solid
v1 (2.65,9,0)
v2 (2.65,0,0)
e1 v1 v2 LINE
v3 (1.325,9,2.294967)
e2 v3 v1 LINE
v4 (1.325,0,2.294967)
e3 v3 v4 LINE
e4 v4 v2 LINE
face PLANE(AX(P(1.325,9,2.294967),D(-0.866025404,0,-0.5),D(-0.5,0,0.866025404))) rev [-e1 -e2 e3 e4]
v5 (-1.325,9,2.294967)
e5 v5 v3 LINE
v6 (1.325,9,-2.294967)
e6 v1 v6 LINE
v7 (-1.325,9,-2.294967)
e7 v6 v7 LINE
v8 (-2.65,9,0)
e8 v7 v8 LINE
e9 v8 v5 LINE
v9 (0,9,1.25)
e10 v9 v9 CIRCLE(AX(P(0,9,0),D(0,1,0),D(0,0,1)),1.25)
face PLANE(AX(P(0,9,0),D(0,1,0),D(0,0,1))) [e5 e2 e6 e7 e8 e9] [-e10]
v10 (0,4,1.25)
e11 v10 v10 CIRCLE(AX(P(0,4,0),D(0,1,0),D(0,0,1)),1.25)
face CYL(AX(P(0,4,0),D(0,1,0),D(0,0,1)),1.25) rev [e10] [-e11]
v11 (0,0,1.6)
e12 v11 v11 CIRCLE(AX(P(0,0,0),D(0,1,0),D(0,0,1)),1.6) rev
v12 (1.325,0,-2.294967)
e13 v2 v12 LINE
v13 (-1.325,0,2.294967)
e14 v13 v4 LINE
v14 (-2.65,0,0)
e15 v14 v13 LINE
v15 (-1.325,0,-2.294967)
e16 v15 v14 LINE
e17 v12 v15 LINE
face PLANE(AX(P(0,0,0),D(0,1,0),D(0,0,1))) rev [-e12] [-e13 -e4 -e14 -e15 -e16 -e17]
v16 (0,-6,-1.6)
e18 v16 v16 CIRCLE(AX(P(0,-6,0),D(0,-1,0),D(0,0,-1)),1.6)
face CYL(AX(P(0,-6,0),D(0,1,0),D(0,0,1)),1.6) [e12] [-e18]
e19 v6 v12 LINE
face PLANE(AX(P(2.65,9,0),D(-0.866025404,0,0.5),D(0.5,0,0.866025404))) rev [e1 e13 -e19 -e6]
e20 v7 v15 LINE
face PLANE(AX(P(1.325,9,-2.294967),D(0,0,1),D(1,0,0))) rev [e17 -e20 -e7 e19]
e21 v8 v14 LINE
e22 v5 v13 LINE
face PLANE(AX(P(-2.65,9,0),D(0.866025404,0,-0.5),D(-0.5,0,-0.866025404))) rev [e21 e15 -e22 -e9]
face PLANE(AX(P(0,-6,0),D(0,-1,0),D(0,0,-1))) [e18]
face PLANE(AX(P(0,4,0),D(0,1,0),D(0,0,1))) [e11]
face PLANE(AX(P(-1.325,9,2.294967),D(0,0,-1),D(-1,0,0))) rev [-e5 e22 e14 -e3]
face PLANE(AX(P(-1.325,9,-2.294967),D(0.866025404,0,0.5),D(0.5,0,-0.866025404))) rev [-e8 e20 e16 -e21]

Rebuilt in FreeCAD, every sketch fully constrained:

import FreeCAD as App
import Part
import Sketcher
from FreeCAD import Vector
Q = App.Units.Quantity

doc = App.newDocument("Part")
body = doc.addObject("PartDesign::Body", "Body")

# Sketch on XZ plane
sketch1 = body.newObject("Sketcher::SketchObject", "Sketch")
sketch1.AttachmentSupport = (doc.getObject("XZ_Plane"), [""])
sketch1.MapMode = "FlatFace"
sketch1.addGeometry([
    Part.LineSegment(Vector(1.3, 2.3, 0), Vector(2.6, 0, 0)),  # 0
    Part.LineSegment(Vector(2.6, 0, 0), Vector(1.3, -2.3, 0)),  # 1
    Part.LineSegment(Vector(1.3, -2.3, 0), Vector(-1.3, -2.3, 0)),  # 2
    Part.LineSegment(Vector(-1.3, -2.3, 0), Vector(-2.6, 0, 0)),  # 3
    Part.LineSegment(Vector(-2.6, 0, 0), Vector(-1.3, 2.3, 0)),  # 4
    Part.LineSegment(Vector(-1.3, 2.3, 0), Vector(1.3, 2.3, 0)),  # 5
], False)
sketch1.addConstraint([
    Sketcher.Constraint("Coincident", 0, 2, 1, 1),
    Sketcher.Constraint("Coincident", 1, 2, 2, 1),
    Sketcher.Constraint("Coincident", 2, 2, 3, 1),
    Sketcher.Constraint("Coincident", 3, 2, 4, 1),
    Sketcher.Constraint("Coincident", 4, 2, 5, 1),
    Sketcher.Constraint("Coincident", 5, 2, 0, 1),
    Sketcher.Constraint("Horizontal", 2),
    Sketcher.Constraint("Horizontal", 5),
    Sketcher.Constraint("Symmetric", 0, 2, 3, 2, -1, 1),
    Sketcher.Constraint("Symmetric", 1, 2, 4, 2, -1, 1),
    Sketcher.Constraint("PointOnObject", 0, 2, -1),
    Sketcher.Constraint("Parallel", 0, 3),
    Sketcher.Constraint("Vertical", 2, 2, 4, 2),
    Sketcher.Constraint("Angle", 0, Q("-60 deg")),
    Sketcher.Constraint("DistanceX", 2, 2, 2, 1, 2.65),
    Sketcher.Constraint("DistanceX", 3, 2, 0, 2, 5.3),
])
pad1 = body.newObject("PartDesign::Pad", "Pad")
pad1.Profile = sketch1
pad1.Length = 9
pad1.Reversed = True

# Sketch on XZ plane
sketch2 = body.newObject("Sketcher::SketchObject", "Sketch001")
sketch2.AttachmentSupport = (doc.getObject("XZ_Plane"), [""])
sketch2.MapMode = "FlatFace"
sketch2.addGeometry(Part.Circle(Vector(0, 0, 0), Vector(0, 0, 1), 1.6), False)
sketch2.addConstraint([
    Sketcher.Constraint("Coincident", 0, 3, -1, 1),
    Sketcher.Constraint("Diameter", 0, 3.2),
])
pad2 = body.newObject("PartDesign::Pad", "Pad001")
pad2.Profile = sketch2
pad2.Length = 6

# Sketch on XZ plane
sketch3 = body.newObject("Sketcher::SketchObject", "Sketch002")
sketch3.AttachmentSupport = (doc.getObject("XZ_Plane"), [""])
sketch3.MapMode = "FlatFace"
sketch3.AttachmentOffset = App.Placement(Vector(0, 0, -9), App.Rotation())
sketch3.addGeometry(Part.Circle(Vector(0, 0, 0), Vector(0, 0, 1), 1.2), False)
sketch3.addConstraint([
    Sketcher.Constraint("Coincident", 0, 3, -1, 1),
    Sketcher.Constraint("Diameter", 0, 2.5),
])
pocket1 = body.newObject("PartDesign::Pocket", "Pocket")
pocket1.Profile = sketch3
pocket1.Length = 5
pocket1.Reversed = True

doc.recompute()
